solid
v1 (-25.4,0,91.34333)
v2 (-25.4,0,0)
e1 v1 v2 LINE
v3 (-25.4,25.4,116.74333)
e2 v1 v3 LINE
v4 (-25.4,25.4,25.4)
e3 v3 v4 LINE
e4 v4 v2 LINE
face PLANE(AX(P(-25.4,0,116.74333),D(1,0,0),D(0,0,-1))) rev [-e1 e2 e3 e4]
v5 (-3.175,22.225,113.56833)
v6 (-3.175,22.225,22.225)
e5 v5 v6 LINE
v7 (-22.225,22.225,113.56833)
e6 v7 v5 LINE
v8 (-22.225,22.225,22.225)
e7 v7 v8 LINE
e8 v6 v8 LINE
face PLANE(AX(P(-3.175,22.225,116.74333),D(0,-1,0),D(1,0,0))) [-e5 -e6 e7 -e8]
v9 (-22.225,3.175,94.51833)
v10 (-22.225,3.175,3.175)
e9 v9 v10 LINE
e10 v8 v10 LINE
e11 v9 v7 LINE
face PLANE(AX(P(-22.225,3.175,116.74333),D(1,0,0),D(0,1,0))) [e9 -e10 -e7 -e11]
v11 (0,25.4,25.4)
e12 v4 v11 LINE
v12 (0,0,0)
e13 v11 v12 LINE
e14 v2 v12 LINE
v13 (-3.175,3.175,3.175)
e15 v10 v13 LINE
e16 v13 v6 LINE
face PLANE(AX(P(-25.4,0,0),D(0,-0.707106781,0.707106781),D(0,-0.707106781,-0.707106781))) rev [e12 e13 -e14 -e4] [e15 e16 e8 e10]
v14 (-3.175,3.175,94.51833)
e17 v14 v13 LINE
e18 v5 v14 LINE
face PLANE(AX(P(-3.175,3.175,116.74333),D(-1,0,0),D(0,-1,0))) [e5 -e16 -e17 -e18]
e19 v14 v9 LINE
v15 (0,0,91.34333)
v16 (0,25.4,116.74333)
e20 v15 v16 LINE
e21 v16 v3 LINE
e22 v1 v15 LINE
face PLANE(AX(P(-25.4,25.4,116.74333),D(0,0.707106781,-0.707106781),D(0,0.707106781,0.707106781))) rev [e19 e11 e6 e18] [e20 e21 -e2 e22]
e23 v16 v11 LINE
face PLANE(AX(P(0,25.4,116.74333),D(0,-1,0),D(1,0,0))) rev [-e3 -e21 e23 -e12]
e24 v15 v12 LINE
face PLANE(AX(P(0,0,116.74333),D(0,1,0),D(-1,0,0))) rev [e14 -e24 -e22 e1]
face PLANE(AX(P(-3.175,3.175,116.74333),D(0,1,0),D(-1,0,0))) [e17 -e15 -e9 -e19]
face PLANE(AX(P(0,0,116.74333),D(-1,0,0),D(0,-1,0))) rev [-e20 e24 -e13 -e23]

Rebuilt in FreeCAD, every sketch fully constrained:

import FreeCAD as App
import Part
import Sketcher
Q = App.Units.Quantity

doc = App.newDocument("Part")
params = doc.addObject("Spreadsheet::Sheet", "Params")
for row, (alias, value) in enumerate([
    ("sketch1_width", "1 in"),
    ("sketch1_width2", "0.75 in"),
    ("pad1_length", "116.74333 mm"),
    ("sketch2_width", "1 in"),
], start=1):
    params.set(f"A{row}", alias)
    params.set(f"B{row}", "=" + value)
    params.setAlias(f"B{row}", alias)

body = doc.addObject("PartDesign::Body", "Body")

sketch1 = doc.addObject("Sketcher::SketchObject", "Sketch")
body.addObject(sketch1)
sketch1.AttachmentSupport = (doc.XY_Plane, [""])
sketch1.MapMode = "FlatFace"
sketch1.addGeometry([
    Part.LineSegment(App.Vector(-25.4, 25.4, 0), App.Vector(-25.4, 0, 0)),
    Part.LineSegment(App.Vector(-25.4, 0, 0), App.Vector(0, 0, 0)),
    Part.LineSegment(App.Vector(0, 0, 0), App.Vector(0, 25.4, 0)),
    Part.LineSegment(App.Vector(0, 25.4, 0), App.Vector(-25.4, 25.4, 0)),
    Part.LineSegment(App.Vector(-3.175, 3.175, 0), App.Vector(-22.225, 3.175, 0)),
    Part.LineSegment(App.Vector(-22.225, 3.175, 0), App.Vector(-22.225, 22.225, 0)),
    Part.LineSegment(App.Vector(-22.225, 22.225, 0), App.Vector(-3.175, 22.225, 0)),
    Part.LineSegment(App.Vector(-3.175, 22.225, 0), App.Vector(-3.175, 3.175, 0)),
], False)
sketch1.addConstraint([
    Sketcher.Constraint("Coincident", 0, 2, 1, 1),
    Sketcher.Constraint("Coincident", 1, 2, 2, 1),
    Sketcher.Constraint("Coincident", 2, 2, 3, 1),
    Sketcher.Constraint("Coincident", 3, 2, 0, 1),
    Sketcher.Constraint("Coincident", 4, 2, 5, 1),
    Sketcher.Constraint("Coincident", 5, 2, 6, 1),
    Sketcher.Constraint("Coincident", 6, 2, 7, 1),
    Sketcher.Constraint("Coincident", 7, 2, 4, 1),
    Sketcher.Constraint("Vertical", 0),
    Sketcher.Constraint("Horizontal", 1),
    Sketcher.Constraint("Vertical", 2),
    Sketcher.Constraint("Horizontal", 3),
    Sketcher.Constraint("Horizontal", 4),
    Sketcher.Constraint("Vertical", 5),
    Sketcher.Constraint("Horizontal", 6),
    Sketcher.Constraint("Vertical", 7),
    Sketcher.Constraint("Coincident", 1, 2, -1, 1),
    Sketcher.Constraint("Equal", 3, 0),
    Sketcher.Constraint("Equal", 6, 5),
    Sketcher.Constraint("DistanceX", 1, 1, 1, 2, Q("1 in")),
    Sketcher.Constraint("DistanceX", 4, 2, 4, 1, Q("0.75 in")),
    Sketcher.Constraint("DistanceX", 4, 2, -1, 1, Q("0.875 in")),
    Sketcher.Constraint("DistanceY", -1, 1, 4, 2, Q("0.125 in")),
])
sketch1.setExpression("Constraints[19]", "Params.sketch1_width")
sketch1.setExpression("Constraints[20]", "Params.sketch1_width2")
pad1 = doc.addObject("PartDesign::Pad", "Pad")
body.addObject(pad1)
pad1.Profile = sketch1
pad1.setExpression("Length", "Params.pad1_length")

sketch2 = doc.addObject("Sketcher::SketchObject", "Sketch001")
body.addObject(sketch2)
sketch2.AttachmentSupport = (doc.YZ_Plane, [""])
sketch2.MapMode = "FlatFace"
sketch2.addGeometry([
    Part.LineSegment(App.Vector(0, 91.34333, 0), App.Vector(25.4, 116.74333, 0)),
    Part.LineSegment(App.Vector(25.4, 116.74333, 0), App.Vector(0, 116.74333, 0)),
    Part.LineSegment(App.Vector(0, 116.74333, 0), App.Vector(0, 91.34333, 0)),
    Part.LineSegment(App.Vector(25.4, 25.4, 0), App.Vector(0, 0, 0)),
    Part.LineSegment(App.Vector(0, 0, 0), App.Vector(25.4, 0, 0)),
    Part.LineSegment(App.Vector(25.4, 0, 0), App.Vector(25.4, 25.4, 0)),
], False)
sketch2.addConstraint([
    Sketcher.Constraint("Coincident", 0, 2, 1, 1),
    Sketcher.Constraint("Coincident", 1, 2, 2, 1),
    Sketcher.Constraint("Coincident", 2, 2, 0, 1),
    Sketcher.Constraint("Coincident", 3, 2, 4, 1),
    Sketcher.Constraint("Coincident", 4, 2, 5, 1),
    Sketcher.Constraint("Coincident", 5, 2, 3, 1),
    Sketcher.Constraint("Horizontal", 1),
    Sketcher.Constraint("Vertical", 2),
    Sketcher.Constraint("Horizontal", 4),
    Sketcher.Constraint("Vertical", 5),
    Sketcher.Constraint("Coincident", 3, 2, -1, 1),
    Sketcher.Constraint("PointOnObject", 1, 2, -2),
    Sketcher.Constraint("Parallel", 0, 3),
    Sketcher.Constraint("Vertical", 0, 2, 4, 2),
    Sketcher.Constraint("Equal", 4, 2),
    Sketcher.Constraint("DistanceX", 1, 2, 1, 1, Q("1 in")),
    Sketcher.Constraint("DistanceY", -1, 1, 0, 2, 116.74333),
])
sketch2.setExpression("Constraints[15]", "Params.sketch2_width")
pocket1 = doc.addObject("PartDesign::Pocket", "Pocket")
body.addObject(pocket1)
pocket1.Profile = sketch2
pocket1.Type = "ThroughAll"

doc.recompute()
